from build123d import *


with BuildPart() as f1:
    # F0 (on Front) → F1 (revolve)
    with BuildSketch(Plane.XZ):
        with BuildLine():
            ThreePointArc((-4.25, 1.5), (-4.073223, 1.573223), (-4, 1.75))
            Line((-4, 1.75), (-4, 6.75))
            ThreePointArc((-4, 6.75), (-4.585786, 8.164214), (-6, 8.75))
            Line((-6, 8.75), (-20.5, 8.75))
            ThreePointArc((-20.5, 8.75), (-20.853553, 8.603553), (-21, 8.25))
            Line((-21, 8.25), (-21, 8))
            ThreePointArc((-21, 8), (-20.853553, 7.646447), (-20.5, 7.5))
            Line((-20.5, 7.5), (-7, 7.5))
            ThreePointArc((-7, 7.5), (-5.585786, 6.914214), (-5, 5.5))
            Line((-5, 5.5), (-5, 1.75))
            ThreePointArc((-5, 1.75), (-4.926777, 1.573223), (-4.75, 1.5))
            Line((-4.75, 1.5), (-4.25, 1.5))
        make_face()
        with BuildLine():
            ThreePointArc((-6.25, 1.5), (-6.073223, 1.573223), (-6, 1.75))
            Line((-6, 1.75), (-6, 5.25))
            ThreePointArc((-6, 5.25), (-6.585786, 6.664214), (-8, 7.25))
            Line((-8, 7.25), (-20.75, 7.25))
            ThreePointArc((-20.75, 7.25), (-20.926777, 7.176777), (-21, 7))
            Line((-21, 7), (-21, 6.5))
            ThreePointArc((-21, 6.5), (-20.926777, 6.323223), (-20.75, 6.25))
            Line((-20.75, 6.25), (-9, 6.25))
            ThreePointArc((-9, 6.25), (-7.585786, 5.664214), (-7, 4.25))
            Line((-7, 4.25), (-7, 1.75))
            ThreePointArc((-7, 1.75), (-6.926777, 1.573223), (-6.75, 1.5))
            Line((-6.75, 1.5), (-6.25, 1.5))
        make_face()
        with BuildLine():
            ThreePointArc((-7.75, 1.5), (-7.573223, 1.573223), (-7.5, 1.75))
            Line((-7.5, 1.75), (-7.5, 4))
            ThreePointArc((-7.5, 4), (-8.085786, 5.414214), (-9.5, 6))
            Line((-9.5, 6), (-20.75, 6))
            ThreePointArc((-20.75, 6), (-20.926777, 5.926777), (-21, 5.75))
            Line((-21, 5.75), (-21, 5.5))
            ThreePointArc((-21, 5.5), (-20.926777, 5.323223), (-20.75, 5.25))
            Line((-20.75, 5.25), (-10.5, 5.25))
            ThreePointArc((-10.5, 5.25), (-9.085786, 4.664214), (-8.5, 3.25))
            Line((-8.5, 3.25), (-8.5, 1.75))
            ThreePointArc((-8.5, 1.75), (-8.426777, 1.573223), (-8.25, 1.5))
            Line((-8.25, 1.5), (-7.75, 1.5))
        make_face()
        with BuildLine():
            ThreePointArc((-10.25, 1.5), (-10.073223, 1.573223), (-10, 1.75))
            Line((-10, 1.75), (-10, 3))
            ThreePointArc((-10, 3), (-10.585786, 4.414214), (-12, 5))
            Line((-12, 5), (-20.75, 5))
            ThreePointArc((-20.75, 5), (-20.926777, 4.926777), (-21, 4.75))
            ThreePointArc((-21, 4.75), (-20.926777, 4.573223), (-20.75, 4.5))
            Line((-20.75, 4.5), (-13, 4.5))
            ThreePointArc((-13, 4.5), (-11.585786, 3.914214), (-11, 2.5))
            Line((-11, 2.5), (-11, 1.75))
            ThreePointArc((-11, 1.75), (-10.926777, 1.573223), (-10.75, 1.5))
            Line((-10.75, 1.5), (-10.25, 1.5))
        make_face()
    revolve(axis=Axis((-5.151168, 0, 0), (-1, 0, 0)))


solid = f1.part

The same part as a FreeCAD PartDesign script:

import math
import FreeCAD as App
import Part
import Sketcher
Q = App.Units.Quantity

doc = App.newDocument("Part")
params = doc.addObject("Spreadsheet::Sheet", "Params")
for row, (alias, value) in enumerate([
    ("sketch1_radius", "1.999999 mm"),
    ("sketch1_radius2", "0.500001 mm"),
    ("sketch1_height", "5 mm"),
    ("sketch1_radius3", "0.249999 mm"),
    ("sketch1_width", "14.5 mm"),
    ("revolution_angle", "360 deg"),
], start=1):
    params.set(f"A{row}", alias)
    params.set(f"B{row}", "=" + value)
    params.setAlias(f"B{row}", alias)

body = doc.addObject("PartDesign::Body", "Body")
body.AllowCompound = True

sketch1 = doc.addObject("Sketcher::SketchObject", "Sketch")
body.addObject(sketch1)
sketch1.AttachmentSupport = (doc.XZ_Plane, [""])
sketch1.MapMode = "FlatFace"
sketch1.addGeometry(Part.ArcOfCircle(Part.Circle(App.Vector(-4.25, 1.75, 0), App.Vector(0, 0, 1), 0.25), math.radians(-90), math.radians(0)), False)
sketch1.addGeometry(Part.LineSegment(App.Vector(-4, 1.75, 0), App.Vector(-4, 6.75, 0)), False)
sketch1.addGeometry(Part.ArcOfCircle(Part.Circle(App.Vector(-6, 6.75, 0), App.Vector(0, 0, 1), 2), math.radians(0), math.radians(90)), False)
sketch1.addGeometry(Part.LineSegment(App.Vector(-6, 8.75, 0), App.Vector(-20.5, 8.75, 0)), False)
sketch1.addGeometry(Part.ArcOfCircle(Part.Circle(App.Vector(-20.5, 8.25, 0), App.Vector(0, 0, 1), 0.5), math.radians(90), math.radians(180)), False)
sketch1.addGeometry(Part.LineSegment(App.Vector(-21, 8.25, 0), App.Vector(-21, 8, 0)), False)
sketch1.addGeometry(Part.ArcOfCircle(Part.Circle(App.Vector(-20.5, 8, 0), App.Vector(0, 0, 1), 0.5), math.radians(-180), math.radians(-90)), False)
sketch1.addGeometry(Part.LineSegment(App.Vector(-20.5, 7.5, 0), App.Vector(-7, 7.5, 0)), False)
sketch1.addGeometry(Part.ArcOfCircle(Part.Circle(App.Vector(-7, 5.5, 0), App.Vector(0, 0, 1), 2), math.radians(0), math.radians(90)), False)
sketch1.addGeometry(Part.LineSegment(App.Vector(-5, 5.5, 0), App.Vector(-5, 1.75, 0)), False)
sketch1.addGeometry(Part.ArcOfCircle(Part.Circle(App.Vector(-4.75, 1.75, 0), App.Vector(0, 0, 1), 0.25), math.radians(180), math.radians(270)), False)
sketch1.addGeometry(Part.LineSegment(App.Vector(-4.75, 1.5, 0), App.Vector(-4.25, 1.5, 0)), False)
sketch1.addGeometry(Part.ArcOfCircle(Part.Circle(App.Vector(-6.25, 1.75, 0), App.Vector(0, 0, 1), 0.25), math.radians(-90), math.radians(0)), False)
sketch1.addGeometry(Part.LineSegment(App.Vector(-6, 1.75, 0), App.Vector(-6, 5.25, 0)), False)
sketch1.addGeometry(Part.ArcOfCircle(Part.Circle(App.Vector(-8, 5.25, 0), App.Vector(0, 0, 1), 2), math.radians(0), math.radians(90)), False)
sketch1.addGeometry(Part.LineSegment(App.Vector(-8, 7.25, 0), App.Vector(-20.75, 7.25, 0)), False)
sketch1.addGeometry(Part.ArcOfCircle(Part.Circle(App.Vector(-20.75, 7, 0), App.Vector(0, 0, 1), 0.25), math.radians(90), math.radians(180)), False)
sketch1.addGeometry(Part.LineSegment(App.Vector(-21, 7, 0), App.Vector(-21, 6.5, 0)), False)
sketch1.addGeometry(Part.ArcOfCircle(Part.Circle(App.Vector(-20.75, 6.5, 0), App.Vector(0, 0, 1), 0.25), math.radians(180), math.radians(270)), False)
sketch1.addGeometry(Part.LineSegment(App.Vector(-20.75, 6.25, 0), App.Vector(-9, 6.25, 0)), False)
sketch1.addGeometry(Part.ArcOfCircle(Part.Circle(App.Vector(-9, 4.25, 0), App.Vector(0, 0, 1), 2), math.radians(0), math.radians(90)), False)
sketch1.addGeometry(Part.LineSegment(App.Vector(-7, 4.25, 0), App.Vector(-7, 1.75, 0)), False)
sketch1.addGeometry(Part.ArcOfCircle(Part.Circle(App.Vector(-6.75, 1.75, 0), App.Vector(0, 0, 1), 0.25), math.radians(180), math.radians(270)), False)
sketch1.addGeometry(Part.LineSegment(App.Vector(-6.75, 1.5, 0), App.Vector(-6.25, 1.5, 0)), False)
sketch1.addGeometry(Part.ArcOfCircle(Part.Circle(App.Vector(-7.75, 1.75, 0), App.Vector(0, 0, 1), 0.25), math.radians(-90), math.radians(0)), False)
sketch1.addGeometry(Part.LineSegment(App.Vector(-7.5, 1.75, 0), App.Vector(-7.5, 4, 0)), False)
sketch1.addGeometry(Part.ArcOfCircle(Part.Circle(App.Vector(-9.5, 4, 0), App.Vector(0, 0, 1), 2), math.radians(0), math.radians(90)), False)
sketch1.addGeometry(Part.LineSegment(App.Vector(-9.5, 6, 0), App.Vector(-20.75, 6, 0)), False)
sketch1.addGeometry(Part.ArcOfCircle(Part.Circle(App.Vector(-20.75, 5.75, 0), App.Vector(0, 0, 1), 0.25), math.radians(90), math.radians(180)), False)
sketch1.addGeometry(Part.LineSegment(App.Vector(-21, 5.75, 0), App.Vector(-21, 5.5, 0)), False)
sketch1.addGeometry(Part.ArcOfCircle(Part.Circle(App.Vector(-20.75, 5.5, 0), App.Vector(0, 0, 1), 0.25), math.radians(180), math.radians(270)), False)
sketch1.addGeometry(Part.LineSegment(App.Vector(-20.75, 5.25, 0), App.Vector(-10.5, 5.25, 0)), False)
sketch1.addGeometry(Part.ArcOfCircle(Part.Circle(App.Vector(-10.5, 3.25, 0), App.Vector(0, 0, 1), 2), math.radians(0), math.radians(90)), False)
sketch1.addGeometry(Part.LineSegment(App.Vector(-8.5, 3.25, 0), App.Vector(-8.5, 1.75, 0)), False)
sketch1.addGeometry(Part.ArcOfCircle(Part.Circle(App.Vector(-8.25, 1.75, 0), App.Vector(0, 0, 1), 0.25), math.radians(180), math.radians(270)), False)
sketch1.addGeometry(Part.LineSegment(App.Vector(-8.25, 1.5, 0), App.Vector(-7.75, 1.5, 0)), False)
sketch1.addGeometry(Part.ArcOfCircle(Part.Circle(App.Vector(-10.25, 1.75, 0), App.Vector(0, 0, 1), 0.25), math.radians(-90), math.radians(0)), False)
sketch1.addGeometry(Part.LineSegment(App.Vector(-10, 1.75, 0), App.Vector(-10, 3, 0)), False)
sketch1.addGeometry(Part.ArcOfCircle(Part.Circle(App.Vector(-12, 3, 0), App.Vector(0, 0, 1), 2), math.radians(0), math.radians(90)), False)
sketch1.addGeometry(Part.LineSegment(App.Vector(-12, 5, 0), App.Vector(-20.75, 5, 0)), False)
sketch1.addGeometry(Part.ArcOfCircle(Part.Circle(App.Vector(-20.75, 4.75, 0), App.Vector(0, 0, 1), 0.25), math.radians(90), math.radians(180)), False)
sketch1.addGeometry(Part.ArcOfCircle(Part.Circle(App.Vector(-20.75, 4.75, 0), App.Vector(0, 0, 1), 0.25), math.radians(180), math.radians(270)), False)
sketch1.addGeometry(Part.LineSegment(App.Vector(-20.75, 4.5, 0), App.Vector(-13, 4.5, 0)), False)
sketch1.addGeometry(Part.ArcOfCircle(Part.Circle(App.Vector(-13, 2.5, 0), App.Vector(0, 0, 1), 2), math.radians(0), math.radians(90)), False)
sketch1.addGeometry(Part.LineSegment(App.Vector(-11, 2.5, 0), App.Vector(-11, 1.75, 0)), False)
sketch1.addGeometry(Part.ArcOfCircle(Part.Circle(App.Vector(-10.75, 1.75, 0), App.Vector(0, 0, 1), 0.25), math.radians(180), math.radians(270)), False)
sketch1.addGeometry(Part.LineSegment(App.Vector(-10.75, 1.5, 0), App.Vector(-10.25, 1.5, 0)), False)
sketch1.addConstraint(Sketcher.Constraint("Coincident", 0, 2, 1, 1))
sketch1.addConstraint(Sketcher.Constraint("Tangent", 1, 2, 2, 1))
sketch1.addConstraint(Sketcher.Constraint("Tangent", 2, 2, 3, 1))
sketch1.addConstraint(Sketcher.Constraint("Coincident", 3, 2, 4, 1))
sketch1.addConstraint(Sketcher.Constraint("Coincident", 4, 2, 5, 1))
sketch1.addConstraint(Sketcher.Constraint("Coincident", 5, 2, 6, 1))
sketch1.addConstraint(Sketcher.Constraint("Coincident", 6, 2, 7, 1))
sketch1.addConstraint(Sketcher.Constraint("Tangent", 7, 2, 8, 2))
sketch1.addConstraint(Sketcher.Constraint("Tangent", 8, 1, 9, 1))
sketch1.addConstraint(Sketcher.Constraint("Coincident", 9, 2, 10, 1))
sketch1.addConstraint(Sketcher.Constraint("Coincident", 10, 2, 11, 1))
sketch1.addConstraint(Sketcher.Constraint("Coincident", 11, 2, 0, 1))
sketch1.addConstraint(Sketcher.Constraint("Coincident", 12, 2, 13, 1))
sketch1.addConstraint(Sketcher.Constraint("Tangent", 13, 2, 14, 1))
sketch1.addConstraint(Sketcher.Constraint("Tangent", 14, 2, 15, 1))
sketch1.addConstraint(Sketcher.Constraint("Coincident", 15, 2, 16, 1))
sketch1.addConstraint(Sketcher.Constraint("Coincident", 16, 2, 17, 1))
sketch1.addConstraint(Sketcher.Constraint("Coincident", 17, 2, 18, 1))
sketch1.addConstraint(Sketcher.Constraint("Coincident", 18, 2, 19, 1))
sketch1.addConstraint(Sketcher.Constraint("Tangent", 19, 2, 20, 2))
sketch1.addConstraint(Sketcher.Constraint("Tangent", 20, 1, 21, 1))
sketch1.addConstraint(Sketcher.Constraint("Coincident", 21, 2, 22, 1))
sketch1.addConstraint(Sketcher.Constraint("Coincident", 22, 2, 23, 1))
sketch1.addConstraint(Sketcher.Constraint("Coincident", 23, 2, 12, 1))
sketch1.addConstraint(Sketcher.Constraint("Coincident", 24, 2, 25, 1))
sketch1.addConstraint(Sketcher.Constraint("Tangent", 25, 2, 26, 1))
sketch1.addConstraint(Sketcher.Constraint("Tangent", 26, 2, 27, 1))
sketch1.addConstraint(Sketcher.Constraint("Coincident", 27, 2, 28, 1))
sketch1.addConstraint(Sketcher.Constraint("Coincident", 28, 2, 29, 1))
sketch1.addConstraint(Sketcher.Constraint("Coincident", 29, 2, 30, 1))
sketch1.addConstraint(Sketcher.Constraint("Coincident", 30, 2, 31, 1))
sketch1.addConstraint(Sketcher.Constraint("Tangent", 31, 2, 32, 2))
sketch1.addConstraint(Sketcher.Constraint("Tangent", 32, 1, 33, 1))
sketch1.addConstraint(Sketcher.Constraint("Coincident", 33, 2, 34, 1))
sketch1.addConstraint(Sketcher.Constraint("Coincident", 34, 2, 35, 1))
sketch1.addConstraint(Sketcher.Constraint("Coincident", 35, 2, 24, 1))
sketch1.addConstraint(Sketcher.Constraint("Coincident", 36, 2, 37, 1))
sketch1.addConstraint(Sketcher.Constraint("Tangent", 37, 2, 38, 1))
sketch1.addConstraint(Sketcher.Constraint("Tangent", 38, 2, 39, 1))
sketch1.addConstraint(Sketcher.Constraint("Coincident", 39, 2, 40, 1))
sketch1.addConstraint(Sketcher.Constraint("Coincident", 40, 2, 41, 1))
sketch1.addConstraint(Sketcher.Constraint("Coincident", 41, 2, 42, 1))
sketch1.addConstraint(Sketcher.Constraint("Tangent", 42, 2, 43, 2))
sketch1.addConstraint(Sketcher.Constraint("Tangent", 43, 1, 44, 1))
sketch1.addConstraint(Sketcher.Constraint("Coincident", 44, 2, 45, 1))
sketch1.addConstraint(Sketcher.Constraint("Coincident", 45, 2, 46, 1))
sketch1.addConstraint(Sketcher.Constraint("Coincident", 46, 2, 36, 1))
sketch1.addConstraint(Sketcher.Constraint("Vertical", 1))
sketch1.addConstraint(Sketcher.Constraint("Horizontal", 3))
sketch1.addConstraint(Sketcher.Constraint("Vertical", 5))
sketch1.addConstraint(Sketcher.Constraint("Horizontal", 7))
sketch1.addConstraint(Sketcher.Constraint("Vertical", 9))
sketch1.addConstraint(Sketcher.Constraint("Horizontal", 11))
sketch1.addConstraint(Sketcher.Constraint("Vertical", 13))
sketch1.addConstraint(Sketcher.Constraint("Horizontal", 15))
sketch1.addConstraint(Sketcher.Constraint("Vertical", 17))
sketch1.addConstraint(Sketcher.Constraint("Horizontal", 19))
sketch1.addConstraint(Sketcher.Constraint("Vertical", 21))
sketch1.addConstraint(Sketcher.Constraint("Horizontal", 23))
sketch1.addConstraint(Sketcher.Constraint("Vertical", 25))
sketch1.addConstraint(Sketcher.Constraint("Horizontal", 27))
sketch1.addConstraint(Sketcher.Constraint("Vertical", 29))
sketch1.addConstraint(Sketcher.Constraint("Horizontal", 31))
sketch1.addConstraint(Sketcher.Constraint("Vertical", 33))
sketch1.addConstraint(Sketcher.Constraint("Horizontal", 35))
sketch1.addConstraint(Sketcher.Constraint("Vertical", 37))
sketch1.addConstraint(Sketcher.Constraint("Horizontal", 39))
sketch1.addConstraint(Sketcher.Constraint("Horizontal", 42))
sketch1.addConstraint(Sketcher.Constraint("Vertical", 44))
sketch1.addConstraint(Sketcher.Constraint("Horizontal", 46))
sketch1.addConstraint(Sketcher.Constraint("Coincident", 41, 3, 40, 3))
sketch1.addConstraint(Sketcher.Constraint("Equal", 4, 6))
sketch1.addConstraint(Sketcher.Constraint("Equal", 2, 8))
sketch1.addConstraint(Sketcher.Constraint("Equal", 0, 10))
sketch1.addConstraint(Sketcher.Constraint("Equal", 10, 12))
sketch1.addConstraint(Sketcher.Constraint("Equal", 8, 14))
sketch1.addConstraint(Sketcher.Constraint("Equal", 12, 16))
sketch1.addConstraint(Sketcher.Constraint("Equal", 16, 18))
sketch1.addConstraint(Sketcher.Constraint("Equal", 14, 20))
sketch1.addConstraint(Sketcher.Constraint("Equal", 18, 22))
sketch1.addConstraint(Sketcher.Constraint("Equal", 22, 24))
sketch1.addConstraint(Sketcher.Constraint("Equal", 20, 26))
sketch1.addConstraint(Sketcher.Constraint("Equal", 24, 28))
sketch1.addConstraint(Sketcher.Constraint("Equal", 28, 30))
sketch1.addConstraint(Sketcher.Constraint("Equal", 26, 32))
sketch1.addConstraint(Sketcher.Constraint("Equal", 30, 34))
sketch1.addConstraint(Sketcher.Constraint("Equal", 34, 36))
sketch1.addConstraint(Sketcher.Constraint("Equal", 32, 38))
sketch1.addConstraint(Sketcher.Constraint("Equal", 36, 40))
sketch1.addConstraint(Sketcher.Constraint("Equal", 38, 43))
sketch1.addConstraint(Sketcher.Constraint("Equal", 41, 45))
sketch1.addConstraint(Sketcher.Constraint("Horizontal", 10, 3, 12, 3))
sketch1.addConstraint(Sketcher.Constraint("Horizontal", 22, 3, 24, 3))
sketch1.addConstraint(Sketcher.Constraint("Horizontal", 34, 3, 36, 3))
sketch1.addConstraint(Sketcher.Constraint("Horizontal", 45, 3, 0, 2))
sketch1.addConstraint(Sketcher.Constraint("Horizontal", 6, 3, 5, 2))
sketch1.addConstraint(Sketcher.Constraint("Horizontal", 30, 3, 8, 1))
sketch1.addConstraint(Sketcher.Constraint("Horizontal", 0, 2, 9, 2))
sketch1.addConstraint(Sketcher.Constraint("Horizontal", 9, 2, 12, 2))
sketch1.addConstraint(Sketcher.Constraint("Horizontal", 18, 3, 17, 2))
sketch1.addConstraint(Sketcher.Constraint("Horizontal", 12, 2, 21, 2))
sketch1.addConstraint(Sketcher.Constraint("Horizontal", 21, 2, 24, 2))
sketch1.addConstraint(Sketcher.Constraint("Horizontal", 8, 1, 29, 2))
sketch1.addConstraint(Sketcher.Constraint("Horizontal", 13, 2, 30, 2))
sketch1.addConstraint(Sketcher.Constraint("Horizontal", 24, 2, 33, 2))
sketch1.addConstraint(Sketcher.Constraint("Horizontal", 33, 2, 36, 2))
sketch1.addConstraint(Sketcher.Constraint("Horizontal", 41, 3, 40, 2))
sketch1.addConstraint(Sketcher.Constraint("Horizontal", 36, 2, 44, 2))
sketch1.addConstraint(Sketcher.Constraint("Vertical", 18, 3, 28, 3))
sketch1.addConstraint(Sketcher.Constraint("Vertical", 30, 3, 40, 3))
sketch1.addConstraint(Sketcher.Constraint("Vertical", 6, 3, 3, 2))
sketch1.addConstraint(Sketcher.Constraint("Vertical", 3, 2, 6, 2))
sketch1.addConstraint(Sketcher.Constraint("Vertical", 0, 3, 11, 2))
sketch1.addConstraint(Sketcher.Constraint("Vertical", 2, 2, 12, 2))
sketch1.addConstraint(Sketcher.Constraint("Vertical", 41, 3, 15, 2))
sketch1.addConstraint(Sketcher.Constraint("Vertical", 5, 2, 16, 2))
sketch1.addConstraint(Sketcher.Constraint("Vertical", 15, 2, 18, 2))
sketch1.addConstraint(Sketcher.Constraint("Vertical", 7, 2, 20, 1))
sketch1.addConstraint(Sketcher.Constraint("Vertical", 12, 3, 23, 2))
sketch1.addConstraint(Sketcher.Constraint("Vertical", 18, 2, 27, 2))
sketch1.addConstraint(Sketcher.Constraint("Vertical", 27, 2, 30, 2))
sketch1.addConstraint(Sketcher.Constraint("Vertical", 24, 3, 35, 2))
sketch1.addConstraint(Sketcher.Constraint("Vertical", 30, 2, 39, 2))
sketch1.addConstraint(Sketcher.Constraint("Vertical", 39, 2, 41, 2))
sketch1.addConstraint(Sketcher.Constraint("Vertical", 36, 3, 46, 2))
sketch1.addConstraint(Sketcher.Constraint("Equal", 11, 23))
sketch1.addConstraint(Sketcher.Constraint("Equal", 23, 35))
sketch1.addConstraint(Sketcher.Constraint("Equal", 35, 46))
sketch1.addConstraint(Sketcher.Constraint("Equal", 46, 17))
sketch1.addConstraint(Sketcher.Constraint("Equal", 5, 29))
sketch1.addConstraint(Sketcher.Constraint("Radius", 2, Q("1.999999 mm")))
sketch1.addConstraint(Sketcher.Constraint("Radius", 4, Q("0.500001 mm")))
sketch1.addConstraint(Sketcher.Constraint("DistanceY", 1, 1, 1, 2, Q("5 mm")))
sketch1.addConstraint(Sketcher.Constraint("Radius", 0, Q("0.249999 mm")))
sketch1.addConstraint(Sketcher.Constraint("DistanceX", 3, 2, 3, 1, Q("14.5 mm")))
sketch1.addConstraint(Sketcher.Constraint("DistanceX", 7, 1, 7, 2, Q("13.5 mm")))
sketch1.addConstraint(Sketcher.Constraint("DistanceX", 11, 1, 11, 2, Q("0.5 mm")))
sketch1.addConstraint(Sketcher.Constraint("DistanceY", 13, 1, 13, 2, Q("3.5 mm")))
sketch1.addConstraint(Sketcher.Constraint("DistanceY", 21, 2, 21, 1, Q("2.5 mm")))
sketch1.addConstraint(Sketcher.Constraint("DistanceX", 2, 3, -1, 1, Q("5.999999 mm")))
sketch1.addConstraint(Sketcher.Constraint("DistanceY", -1, 1, 6, 3, Q("8.000001 mm")))
sketch1.addConstraint(Sketcher.Constraint("DistanceY", -1, 1, 26, 3, Q("4.000001 mm")))
sketch1.addConstraint(Sketcher.Constraint("DistanceX", 38, 3, -1, 1, Q("11.999999 mm")))
sketch1.addConstraint(Sketcher.Constraint("DistanceY", -1, 1, 38, 3, Q("3.000001 mm")))
sketch1.addConstraint(Sketcher.Constraint("DistanceX", 43, 3, -1, 1, Q("12.999999 mm")))
sketch1.addConstraint(Sketcher.Constraint("DistanceX", 27, 2, 27, 1, Q("11.25 mm")))
sketch1.addConstraint(Sketcher.Constraint("DistanceX", 31, 1, 31, 2, Q("10.25 mm")))
sketch1.addConstraint(Sketcher.Constraint("DistanceY", 5, 2, 5, 1, Q("0.25 mm")))
sketch1.setExpression("Constraints[130]", "Params.sketch1_radius")
sketch1.setExpression("Constraints[131]", "Params.sketch1_radius2")
sketch1.setExpression("Constraints[132]", "Params.sketch1_height")
sketch1.setExpression("Constraints[133]", "Params.sketch1_radius3")
sketch1.setExpression("Constraints[134]", "Params.sketch1_width")
revolution = doc.addObject("PartDesign::Revolution", "Revolution")
body.addObject(revolution)
revolution.Profile = sketch1
revolution.ReferenceAxis = (sketch1, ["H_Axis"])
revolution.setExpression("Angle", "Params.revolution_angle")

doc.recompute()
